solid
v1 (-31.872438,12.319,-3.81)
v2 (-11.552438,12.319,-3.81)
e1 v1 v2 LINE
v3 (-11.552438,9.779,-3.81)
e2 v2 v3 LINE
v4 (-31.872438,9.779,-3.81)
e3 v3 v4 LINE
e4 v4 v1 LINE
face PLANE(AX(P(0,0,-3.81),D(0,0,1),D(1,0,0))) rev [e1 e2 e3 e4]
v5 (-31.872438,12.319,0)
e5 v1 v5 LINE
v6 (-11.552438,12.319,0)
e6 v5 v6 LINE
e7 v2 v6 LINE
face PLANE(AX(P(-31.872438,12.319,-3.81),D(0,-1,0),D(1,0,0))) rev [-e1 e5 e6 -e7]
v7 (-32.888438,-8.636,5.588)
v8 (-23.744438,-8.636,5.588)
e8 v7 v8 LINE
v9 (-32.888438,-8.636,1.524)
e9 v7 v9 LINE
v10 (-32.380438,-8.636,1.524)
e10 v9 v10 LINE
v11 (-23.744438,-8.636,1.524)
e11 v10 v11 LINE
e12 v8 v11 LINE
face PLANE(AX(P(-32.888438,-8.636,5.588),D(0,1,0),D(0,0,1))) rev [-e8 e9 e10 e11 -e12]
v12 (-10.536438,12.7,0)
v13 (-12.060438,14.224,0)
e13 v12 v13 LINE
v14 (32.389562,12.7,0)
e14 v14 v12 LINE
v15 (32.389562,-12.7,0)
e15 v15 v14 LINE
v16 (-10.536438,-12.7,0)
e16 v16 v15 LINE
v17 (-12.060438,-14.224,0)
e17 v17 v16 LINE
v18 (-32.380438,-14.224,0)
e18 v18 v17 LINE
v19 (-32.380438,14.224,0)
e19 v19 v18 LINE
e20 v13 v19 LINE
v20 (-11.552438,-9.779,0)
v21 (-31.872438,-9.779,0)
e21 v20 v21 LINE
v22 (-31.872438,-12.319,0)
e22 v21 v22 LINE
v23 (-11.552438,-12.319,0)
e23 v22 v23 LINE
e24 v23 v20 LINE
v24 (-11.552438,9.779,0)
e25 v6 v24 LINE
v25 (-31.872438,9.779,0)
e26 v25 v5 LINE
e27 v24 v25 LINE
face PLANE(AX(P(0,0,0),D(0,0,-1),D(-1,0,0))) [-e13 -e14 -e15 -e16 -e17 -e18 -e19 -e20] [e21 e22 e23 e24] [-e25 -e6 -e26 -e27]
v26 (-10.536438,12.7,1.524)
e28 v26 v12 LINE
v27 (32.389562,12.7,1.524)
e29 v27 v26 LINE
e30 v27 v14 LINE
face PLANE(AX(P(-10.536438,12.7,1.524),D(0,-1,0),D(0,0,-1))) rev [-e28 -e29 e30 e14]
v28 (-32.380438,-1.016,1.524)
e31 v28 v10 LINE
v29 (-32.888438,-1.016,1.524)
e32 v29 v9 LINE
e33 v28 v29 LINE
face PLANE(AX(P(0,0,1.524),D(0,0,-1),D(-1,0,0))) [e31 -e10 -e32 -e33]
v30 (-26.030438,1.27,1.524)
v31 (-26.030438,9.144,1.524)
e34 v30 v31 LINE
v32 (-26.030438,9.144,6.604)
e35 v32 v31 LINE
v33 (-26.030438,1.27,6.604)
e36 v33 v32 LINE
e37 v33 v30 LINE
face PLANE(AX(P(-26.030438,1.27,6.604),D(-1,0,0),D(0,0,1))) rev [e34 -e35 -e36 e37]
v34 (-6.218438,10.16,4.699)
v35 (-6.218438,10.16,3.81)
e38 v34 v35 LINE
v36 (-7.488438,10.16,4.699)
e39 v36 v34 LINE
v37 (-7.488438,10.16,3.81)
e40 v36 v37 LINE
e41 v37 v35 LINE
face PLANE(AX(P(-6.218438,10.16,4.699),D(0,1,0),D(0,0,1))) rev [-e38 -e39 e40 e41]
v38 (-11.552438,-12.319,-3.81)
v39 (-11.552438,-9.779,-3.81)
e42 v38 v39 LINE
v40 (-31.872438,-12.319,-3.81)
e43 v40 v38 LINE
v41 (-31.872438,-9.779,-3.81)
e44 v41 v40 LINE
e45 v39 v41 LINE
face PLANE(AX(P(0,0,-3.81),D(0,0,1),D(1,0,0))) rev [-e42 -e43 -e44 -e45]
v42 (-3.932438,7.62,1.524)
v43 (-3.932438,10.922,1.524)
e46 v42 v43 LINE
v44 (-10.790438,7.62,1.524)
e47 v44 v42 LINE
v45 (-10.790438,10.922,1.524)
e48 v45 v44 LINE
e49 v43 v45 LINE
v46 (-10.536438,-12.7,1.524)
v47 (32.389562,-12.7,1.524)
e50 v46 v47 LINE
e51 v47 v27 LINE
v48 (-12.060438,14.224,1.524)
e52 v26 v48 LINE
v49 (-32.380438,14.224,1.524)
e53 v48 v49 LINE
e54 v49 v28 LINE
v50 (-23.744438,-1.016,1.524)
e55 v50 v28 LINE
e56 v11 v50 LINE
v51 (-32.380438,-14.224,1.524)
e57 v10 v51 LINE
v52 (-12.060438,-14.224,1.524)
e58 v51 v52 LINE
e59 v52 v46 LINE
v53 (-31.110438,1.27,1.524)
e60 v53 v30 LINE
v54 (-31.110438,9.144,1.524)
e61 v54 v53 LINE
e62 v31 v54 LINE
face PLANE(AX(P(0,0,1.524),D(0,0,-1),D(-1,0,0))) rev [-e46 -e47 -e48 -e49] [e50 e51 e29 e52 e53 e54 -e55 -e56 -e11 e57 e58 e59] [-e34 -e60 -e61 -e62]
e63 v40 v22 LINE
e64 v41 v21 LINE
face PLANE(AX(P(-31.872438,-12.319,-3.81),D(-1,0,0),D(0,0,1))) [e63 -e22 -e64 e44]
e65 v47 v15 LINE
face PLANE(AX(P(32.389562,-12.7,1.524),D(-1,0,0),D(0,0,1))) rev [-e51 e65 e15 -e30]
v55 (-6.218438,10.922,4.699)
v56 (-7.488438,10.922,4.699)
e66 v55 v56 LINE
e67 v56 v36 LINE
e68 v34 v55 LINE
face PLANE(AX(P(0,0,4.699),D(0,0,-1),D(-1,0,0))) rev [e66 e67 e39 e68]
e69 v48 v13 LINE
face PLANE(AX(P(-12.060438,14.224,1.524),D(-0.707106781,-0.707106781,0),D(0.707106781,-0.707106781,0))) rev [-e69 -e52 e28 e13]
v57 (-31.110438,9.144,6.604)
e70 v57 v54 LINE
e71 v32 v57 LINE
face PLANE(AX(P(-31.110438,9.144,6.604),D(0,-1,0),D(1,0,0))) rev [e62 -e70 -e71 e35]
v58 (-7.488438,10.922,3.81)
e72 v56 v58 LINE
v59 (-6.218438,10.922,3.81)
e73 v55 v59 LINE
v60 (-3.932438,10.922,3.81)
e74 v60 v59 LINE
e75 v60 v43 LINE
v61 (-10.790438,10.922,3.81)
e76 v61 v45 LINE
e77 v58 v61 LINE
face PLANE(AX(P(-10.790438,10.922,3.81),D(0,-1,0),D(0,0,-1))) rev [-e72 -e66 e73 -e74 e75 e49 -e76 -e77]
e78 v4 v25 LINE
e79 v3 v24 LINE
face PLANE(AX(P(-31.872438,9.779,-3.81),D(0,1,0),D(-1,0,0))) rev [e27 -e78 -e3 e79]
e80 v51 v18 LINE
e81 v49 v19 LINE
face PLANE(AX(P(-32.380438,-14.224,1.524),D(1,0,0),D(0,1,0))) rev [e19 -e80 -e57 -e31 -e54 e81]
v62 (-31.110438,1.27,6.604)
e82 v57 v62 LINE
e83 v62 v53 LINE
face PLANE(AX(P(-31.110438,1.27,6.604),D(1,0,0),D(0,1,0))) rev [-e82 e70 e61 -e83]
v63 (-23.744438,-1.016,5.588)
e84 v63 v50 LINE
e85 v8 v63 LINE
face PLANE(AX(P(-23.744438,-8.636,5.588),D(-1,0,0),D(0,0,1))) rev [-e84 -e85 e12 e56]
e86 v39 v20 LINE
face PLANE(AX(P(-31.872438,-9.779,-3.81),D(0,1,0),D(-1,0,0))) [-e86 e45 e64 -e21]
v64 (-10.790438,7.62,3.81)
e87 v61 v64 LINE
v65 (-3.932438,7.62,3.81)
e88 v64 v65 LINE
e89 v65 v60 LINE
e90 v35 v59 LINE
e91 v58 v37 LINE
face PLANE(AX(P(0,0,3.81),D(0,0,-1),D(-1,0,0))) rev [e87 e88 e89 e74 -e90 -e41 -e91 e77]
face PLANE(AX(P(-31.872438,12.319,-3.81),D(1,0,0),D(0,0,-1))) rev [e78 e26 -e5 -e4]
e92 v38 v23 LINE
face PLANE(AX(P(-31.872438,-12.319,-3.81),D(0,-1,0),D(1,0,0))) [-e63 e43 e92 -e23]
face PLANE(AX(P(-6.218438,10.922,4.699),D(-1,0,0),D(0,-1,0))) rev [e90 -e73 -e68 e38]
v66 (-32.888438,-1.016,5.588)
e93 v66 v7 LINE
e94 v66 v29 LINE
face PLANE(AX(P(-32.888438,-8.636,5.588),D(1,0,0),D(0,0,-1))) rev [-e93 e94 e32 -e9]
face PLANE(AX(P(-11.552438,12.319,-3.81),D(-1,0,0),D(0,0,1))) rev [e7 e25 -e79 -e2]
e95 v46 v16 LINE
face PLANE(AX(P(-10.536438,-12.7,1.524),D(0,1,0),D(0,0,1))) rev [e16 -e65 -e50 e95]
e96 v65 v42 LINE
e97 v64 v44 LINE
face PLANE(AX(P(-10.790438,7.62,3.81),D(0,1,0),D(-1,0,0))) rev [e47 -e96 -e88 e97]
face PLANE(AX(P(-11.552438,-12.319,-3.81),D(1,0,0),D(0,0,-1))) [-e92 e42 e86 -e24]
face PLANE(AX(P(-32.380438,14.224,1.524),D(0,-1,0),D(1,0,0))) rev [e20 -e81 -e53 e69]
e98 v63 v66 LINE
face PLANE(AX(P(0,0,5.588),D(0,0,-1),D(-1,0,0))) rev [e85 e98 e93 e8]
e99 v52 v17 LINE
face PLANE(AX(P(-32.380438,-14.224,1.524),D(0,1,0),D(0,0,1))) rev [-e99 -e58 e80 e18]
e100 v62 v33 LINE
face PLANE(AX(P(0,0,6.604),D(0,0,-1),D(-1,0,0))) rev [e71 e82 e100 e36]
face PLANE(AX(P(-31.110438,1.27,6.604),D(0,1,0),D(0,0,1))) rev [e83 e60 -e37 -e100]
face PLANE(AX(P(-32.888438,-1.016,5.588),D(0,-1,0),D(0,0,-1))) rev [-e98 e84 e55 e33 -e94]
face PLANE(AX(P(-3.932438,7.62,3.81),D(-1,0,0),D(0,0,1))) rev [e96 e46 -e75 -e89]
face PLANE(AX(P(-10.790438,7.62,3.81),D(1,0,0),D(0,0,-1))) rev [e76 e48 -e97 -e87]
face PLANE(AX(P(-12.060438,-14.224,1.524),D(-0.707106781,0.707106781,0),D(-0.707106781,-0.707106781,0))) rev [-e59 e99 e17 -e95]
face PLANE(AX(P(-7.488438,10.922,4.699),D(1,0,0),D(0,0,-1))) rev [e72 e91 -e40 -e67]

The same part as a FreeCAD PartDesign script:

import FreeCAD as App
import Part
import Sketcher

V = App.Vector
Q = App.Units.Quantity


def add_polygon(sketch, points):
    """Adds a closed chain of lines whose ends are joined by coincident constraints."""
    first, n = sketch.GeometryCount, len(points)
    for a, b in zip(points, points[1:] + points[:1]):
        sketch.addGeometry(Part.LineSegment(App.Vector(*a, 0), App.Vector(*b, 0)), False)
    for i in range(n):
        sketch.addConstraint(Sketcher.Constraint("Coincident", first + i, 2, first + (i + 1) % n, 1))

doc = App.newDocument("Part")
body = doc.addObject("PartDesign::Body", "Body")

# Sketch on XY plane
sketch1 = doc.addObject("Sketcher::SketchObject", "Sketch")
body.addObject(sketch1)
sketch1.AttachmentSupport = (doc.XY_Plane, [""])
sketch1.MapMode = "FlatFace"
add_polygon(sketch1, [(-10.536438, -12.7), (32.389562, -12.7), (32.389562, 12.7), (-10.536438, 12.7), (-12.060438, 14.224), (-32.380438, 14.224), (-32.380438, -14.224), (-12.060438, -14.224)])  # lines 0-7
sketch1.addConstraint(Sketcher.Constraint("Horizontal", 0))
sketch1.addConstraint(Sketcher.Constraint("Vertical", 1))
sketch1.addConstraint(Sketcher.Constraint("Horizontal", 2))
sketch1.addConstraint(Sketcher.Constraint("Horizontal", 4))
sketch1.addConstraint(Sketcher.Constraint("Vertical", 5))
sketch1.addConstraint(Sketcher.Constraint("Horizontal", 6))
sketch1.addConstraint(Sketcher.Constraint("Symmetric", 3, 2, 6, 2, -1))
sketch1.addConstraint(Sketcher.Constraint("Symmetric", 2, 2, 7, 2, -1))
sketch1.addConstraint(Sketcher.Constraint("Perpendicular", 3, 7))
sketch1.addConstraint(Sketcher.Constraint("DistanceY", 1, 1, 1, 2, Q("1 in")))
sketch1.addConstraint(Sketcher.Constraint("DistanceX", 4, 2, 4, 1, Q("0.8 in")))
sketch1.addConstraint(Sketcher.Constraint("DistanceX", 0, 1, 0, 2, Q("1.69 in")))
sketch1.addConstraint(Sketcher.Constraint("DistanceY", 5, 2, 5, 1, Q("1.12 in")))
sketch1.addConstraint(Sketcher.Constraint("DistanceX", -1, 1, 0, 2, Q("32.389562 mm")))
pad1 = doc.addObject("PartDesign::Pad", "Pad")
body.addObject(pad1)
pad1.Profile = sketch1
pad1.Length = Q("0.06 in")

# Sketch on XY plane
sketch2 = doc.addObject("Sketcher::SketchObject", "Sketch001")
body.addObject(sketch2)
sketch2.AttachmentSupport = (doc.XY_Plane, [""])
sketch2.MapMode = "FlatFace"
sketch2.AttachmentOffset = App.Placement(V(0, 0, 0.06 * 25.4), App.Rotation())
add_polygon(sketch2, [(-32.888438, -1.016), (-32.888438, -8.636), (-23.744438, -8.636), (-23.744438, -1.016)])  # lines 0-3
sketch2.addConstraint(Sketcher.Constraint("Vertical", 0))
sketch2.addConstraint(Sketcher.Constraint("Horizontal", 1))
sketch2.addConstraint(Sketcher.Constraint("Vertical", 2))
sketch2.addConstraint(Sketcher.Constraint("Horizontal", 3))
sketch2.addConstraint(Sketcher.Constraint("DistanceY", 0, 2, 0, 1, Q("0.3 in")))
sketch2.addConstraint(Sketcher.Constraint("DistanceX", 1, 1, 1, 2, Q("0.36 in")))
sketch2.addConstraint(Sketcher.Constraint("DistanceY", 0, 2, -1, 1, Q("0.34 in")))
sketch2.addConstraint(Sketcher.Constraint("DistanceX", 0, 2, -1, 1, Q("32.888438 mm")))
pad2 = doc.addObject("PartDesign::Pad", "Pad001")
body.addObject(pad2)
pad2.Profile = sketch2
pad2.Length = Q("0.16 in")

# Sketch on XY plane
sketch3 = doc.addObject("Sketcher::SketchObject", "Sketch002")
body.addObject(sketch3)
sketch3.AttachmentSupport = (doc.XY_Plane, [""])
sketch3.MapMode = "FlatFace"
sketch3.AttachmentOffset = App.Placement(V(0, 0, 0.06 * 25.4), App.Rotation())
add_polygon(sketch3, [(-31.110438, 9.144), (-31.110438, 1.27), (-26.030438, 1.27), (-26.030438, 9.144)])  # lines 0-3
sketch3.addConstraint(Sketcher.Constraint("Vertical", 0))
sketch3.addConstraint(Sketcher.Constraint("Horizontal", 1))
sketch3.addConstraint(Sketcher.Constraint("Vertical", 2))
sketch3.addConstraint(Sketcher.Constraint("Horizontal", 3))
sketch3.addConstraint(Sketcher.Constraint("DistanceX", 1, 1, 1, 2, Q("0.2 in")))
sketch3.addConstraint(Sketcher.Constraint("DistanceY", 0, 2, 0, 1, Q("0.31 in")))
sketch3.addConstraint(Sketcher.Constraint("DistanceY", -1, 1, 0, 2, Q("0.05 in")))
sketch3.addConstraint(Sketcher.Constraint("DistanceX", 0, 2, -1, 1, Q("31.110438 mm")))
pad3 = doc.addObject("PartDesign::Pad", "Pad002")
body.addObject(pad3)
pad3.Profile = sketch3
pad3.Length = Q("0.2 in")

# Sketch on XY plane
sketch4 = doc.addObject("Sketcher::SketchObject", "Sketch003")
body.addObject(sketch4)
sketch4.AttachmentSupport = (doc.XY_Plane, [""])
sketch4.MapMode = "FlatFace"
add_polygon(sketch4, [(-11.552438, 12.319), (-11.552438, 9.779), (-31.872438, 9.779), (-31.872438, 12.319)])  # lines 0-3
sketch4.addConstraint(Sketcher.Constraint("Vertical", 0))
sketch4.addConstraint(Sketcher.Constraint("Horizontal", 1))
sketch4.addConstraint(Sketcher.Constraint("Vertical", 2))
sketch4.addConstraint(Sketcher.Constraint("Horizontal", 3))
sketch4.addConstraint(Sketcher.Constraint("DistanceX", 1, 2, 1, 1, Q("0.8 in")))
sketch4.addConstraint(Sketcher.Constraint("DistanceY", 0, 2, 0, 1, Q("0.1 in")))
sketch4.addConstraint(Sketcher.Constraint("DistanceY", -1, 1, 0, 2, Q("0.385 in")))
sketch4.addConstraint(Sketcher.Constraint("DistanceX", 0, 2, -1, 1, Q("11.552438 mm")))
pad4 = doc.addObject("PartDesign::Pad", "Pad003")
body.addObject(pad4)
pad4.Profile = sketch4
pad4.Length = Q("0.15 in")
pad4.Reversed = True
doc.recompute()

mirrored = doc.addObject("PartDesign::Mirrored", "Mirrored")
body.addObject(mirrored)
mirrored.Originals = [pad4]
mirrored.MirrorPlane = (doc.XZ_Plane, [""])
body.Tip = mirrored

# Sketch on XY plane
sketch5 = doc.addObject("Sketcher::SketchObject", "Sketch004")
body.addObject(sketch5)
sketch5.AttachmentSupport = (doc.XY_Plane, [""])
sketch5.MapMode = "FlatFace"
sketch5.AttachmentOffset = App.Placement(V(0, 0, 0.06 * 25.4), App.Rotation())
add_polygon(sketch5, [(-10.790438, 10.922), (-10.790438, 7.62), (-3.932438, 7.62), (-3.932438, 10.922)])  # lines 0-3
sketch5.addConstraint(Sketcher.Constraint("Vertical", 0))
sketch5.addConstraint(Sketcher.Constraint("Horizontal", 1))
sketch5.addConstraint(Sketcher.Constraint("Vertical", 2))
sketch5.addConstraint(Sketcher.Constraint("Horizontal", 3))
sketch5.addConstraint(Sketcher.Constraint("DistanceX", 1, 1, 1, 2, Q("0.27 in")))
sketch5.addConstraint(Sketcher.Constraint("DistanceY", 0, 2, 0, 1, Q("0.13 in")))
sketch5.addConstraint(Sketcher.Constraint("DistanceY", -1, 1, 0, 2, Q("0.3 in")))
sketch5.addConstraint(Sketcher.Constraint("DistanceX", 0, 2, -1, 1, Q("10.790438 mm")))
pad5 = doc.addObject("PartDesign::Pad", "Pad004")
body.addObject(pad5)
pad5.Profile = sketch5
pad5.Length = Q("0.09 in")

# Sketch on XY plane
sketch6 = doc.addObject("Sketcher::SketchObject", "Sketch005")
body.addObject(sketch6)
sketch6.AttachmentSupport = (doc.XY_Plane, [""])
sketch6.MapMode = "FlatFace"
sketch6.AttachmentOffset = App.Placement(V(0, 0, 0.15 * 25.4), App.Rotation())
add_polygon(sketch6, [(-7.488438, 10.922), (-7.488438, 10.16), (-6.218438, 10.16), (-6.218438, 10.922)])  # lines 0-3
sketch6.addConstraint(Sketcher.Constraint("Vertical", 0))
sketch6.addConstraint(Sketcher.Constraint("Horizontal", 1))
sketch6.addConstraint(Sketcher.Constraint("Vertical", 2))
sketch6.addConstraint(Sketcher.Constraint("Horizontal", 3))
sketch6.addConstraint(Sketcher.Constraint("DistanceX", 1, 1, 1, 2, Q("0.05 in")))
sketch6.addConstraint(Sketcher.Constraint("DistanceY", 0, 2, 0, 1, Q("0.03 in")))
sketch6.addConstraint(Sketcher.Constraint("DistanceY", -1, 1, 0, 2, Q("0.4 in")))
sketch6.addConstraint(Sketcher.Constraint("DistanceX", 0, 2, -1, 1, Q("7.488438 mm")))
pad6 = doc.addObject("PartDesign::Pad", "Pad005")
body.addObject(pad6)
pad6.Profile = sketch6
pad6.Length = Q("0.035 in")

doc.recompute()
